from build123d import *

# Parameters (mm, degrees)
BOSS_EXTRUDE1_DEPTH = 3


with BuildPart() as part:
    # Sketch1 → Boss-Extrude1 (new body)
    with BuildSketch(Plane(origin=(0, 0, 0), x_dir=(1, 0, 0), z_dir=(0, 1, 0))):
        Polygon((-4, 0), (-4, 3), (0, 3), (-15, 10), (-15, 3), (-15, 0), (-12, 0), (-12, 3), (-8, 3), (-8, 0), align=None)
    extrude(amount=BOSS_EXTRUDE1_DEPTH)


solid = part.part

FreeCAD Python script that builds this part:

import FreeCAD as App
import Part
import Sketcher

V = App.Vector
Q = App.Units.Quantity

doc = App.newDocument("Part")
body = doc.addObject("PartDesign::Body", "Body")

# Sketch on XZ plane
sketch1 = body.newObject("Sketcher::SketchObject", "Sketch")
sketch1.AttachmentSupport = (doc.getObject("XZ_Plane"), [""])
sketch1.MapMode = "FlatFace"
sketch1.addGeometry(Part.LineSegment(V(-4, 0, 0), V(-4, -3, 0)), False)
sketch1.addGeometry(Part.LineSegment(V(-4, -3, 0), V(0, -3, 0)), False)
sketch1.addGeometry(Part.LineSegment(V(0, -3, 0), V(-15, -10, 0)), False)
sketch1.addGeometry(Part.LineSegment(V(-15, -10, 0), V(-15, 0, 0)), False)
sketch1.addGeometry(Part.LineSegment(V(-15, 0, 0), V(-12, 0, 0)), False)
sketch1.addGeometry(Part.LineSegment(V(-12, 0, 0), V(-12, -3, 0)), False)
sketch1.addGeometry(Part.LineSegment(V(-12, -3, 0), V(-8, -3, 0)), False)
sketch1.addGeometry(Part.LineSegment(V(-8, -3, 0), V(-8, 0, 0)), False)
sketch1.addGeometry(Part.LineSegment(V(-8, 0, 0), V(-4, 0, 0)), False)
sketch1.addConstraint(Sketcher.Constraint("Coincident", 0, 2, 1, 1))
sketch1.addConstraint(Sketcher.Constraint("Coincident", 1, 2, 2, 1))
sketch1.addConstraint(Sketcher.Constraint("Coincident", 2, 2, 3, 1))
sketch1.addConstraint(Sketcher.Constraint("Coincident", 3, 2, 4, 1))
sketch1.addConstraint(Sketcher.Constraint("Coincident", 4, 2, 5, 1))
sketch1.addConstraint(Sketcher.Constraint("Coincident", 5, 2, 6, 1))
sketch1.addConstraint(Sketcher.Constraint("Coincident", 6, 2, 7, 1))
sketch1.addConstraint(Sketcher.Constraint("Coincident", 7, 2, 8, 1))
sketch1.addConstraint(Sketcher.Constraint("Coincident", 8, 2, 0, 1))
sketch1.addConstraint(Sketcher.Constraint("Vertical", 0))
sketch1.addConstraint(Sketcher.Constraint("Horizontal", 1))
sketch1.addConstraint(Sketcher.Constraint("Vertical", 3))
sketch1.addConstraint(Sketcher.Constraint("Horizontal", 4))
sketch1.addConstraint(Sketcher.Constraint("Vertical", 5))
sketch1.addConstraint(Sketcher.Constraint("Horizontal", 6))
sketch1.addConstraint(Sketcher.Constraint("Vertical", 7))
sketch1.addConstraint(Sketcher.Constraint("Horizontal", 8))
sketch1.addConstraint(Sketcher.Constraint("PointOnObject", 1, 2, -2))
sketch1.addConstraint(Sketcher.Constraint("PointOnObject", 3, 2, -1))
sketch1.addConstraint(Sketcher.Constraint("PointOnObject", 7, 2, -1))
sketch1.addConstraint(Sketcher.Constraint("Horizontal", 1, 2, 5, 2))
sketch1.addConstraint(Sketcher.Constraint("Equal", 1, 6))
sketch1.addConstraint(Sketcher.Constraint("Equal", 6, 8))
sketch1.addConstraint(Sketcher.Constraint("Equal", 4, 0))
sketch1.addConstraint(Sketcher.Constraint("DistanceX", 1, 1, 1, 2, Q("4 mm")))
sketch1.addConstraint(Sketcher.Constraint("DistanceX", 4, 1, 4, 2, Q("3 mm")))
sketch1.addConstraint(Sketcher.Constraint("DistanceY", 3, 1, 3, 2, Q("10 mm")))
pad1 = body.newObject("PartDesign::Pad", "Pad")
pad1.Profile = sketch1
pad1.Length = 3
pad1.Reversed = True

doc.recompute()
